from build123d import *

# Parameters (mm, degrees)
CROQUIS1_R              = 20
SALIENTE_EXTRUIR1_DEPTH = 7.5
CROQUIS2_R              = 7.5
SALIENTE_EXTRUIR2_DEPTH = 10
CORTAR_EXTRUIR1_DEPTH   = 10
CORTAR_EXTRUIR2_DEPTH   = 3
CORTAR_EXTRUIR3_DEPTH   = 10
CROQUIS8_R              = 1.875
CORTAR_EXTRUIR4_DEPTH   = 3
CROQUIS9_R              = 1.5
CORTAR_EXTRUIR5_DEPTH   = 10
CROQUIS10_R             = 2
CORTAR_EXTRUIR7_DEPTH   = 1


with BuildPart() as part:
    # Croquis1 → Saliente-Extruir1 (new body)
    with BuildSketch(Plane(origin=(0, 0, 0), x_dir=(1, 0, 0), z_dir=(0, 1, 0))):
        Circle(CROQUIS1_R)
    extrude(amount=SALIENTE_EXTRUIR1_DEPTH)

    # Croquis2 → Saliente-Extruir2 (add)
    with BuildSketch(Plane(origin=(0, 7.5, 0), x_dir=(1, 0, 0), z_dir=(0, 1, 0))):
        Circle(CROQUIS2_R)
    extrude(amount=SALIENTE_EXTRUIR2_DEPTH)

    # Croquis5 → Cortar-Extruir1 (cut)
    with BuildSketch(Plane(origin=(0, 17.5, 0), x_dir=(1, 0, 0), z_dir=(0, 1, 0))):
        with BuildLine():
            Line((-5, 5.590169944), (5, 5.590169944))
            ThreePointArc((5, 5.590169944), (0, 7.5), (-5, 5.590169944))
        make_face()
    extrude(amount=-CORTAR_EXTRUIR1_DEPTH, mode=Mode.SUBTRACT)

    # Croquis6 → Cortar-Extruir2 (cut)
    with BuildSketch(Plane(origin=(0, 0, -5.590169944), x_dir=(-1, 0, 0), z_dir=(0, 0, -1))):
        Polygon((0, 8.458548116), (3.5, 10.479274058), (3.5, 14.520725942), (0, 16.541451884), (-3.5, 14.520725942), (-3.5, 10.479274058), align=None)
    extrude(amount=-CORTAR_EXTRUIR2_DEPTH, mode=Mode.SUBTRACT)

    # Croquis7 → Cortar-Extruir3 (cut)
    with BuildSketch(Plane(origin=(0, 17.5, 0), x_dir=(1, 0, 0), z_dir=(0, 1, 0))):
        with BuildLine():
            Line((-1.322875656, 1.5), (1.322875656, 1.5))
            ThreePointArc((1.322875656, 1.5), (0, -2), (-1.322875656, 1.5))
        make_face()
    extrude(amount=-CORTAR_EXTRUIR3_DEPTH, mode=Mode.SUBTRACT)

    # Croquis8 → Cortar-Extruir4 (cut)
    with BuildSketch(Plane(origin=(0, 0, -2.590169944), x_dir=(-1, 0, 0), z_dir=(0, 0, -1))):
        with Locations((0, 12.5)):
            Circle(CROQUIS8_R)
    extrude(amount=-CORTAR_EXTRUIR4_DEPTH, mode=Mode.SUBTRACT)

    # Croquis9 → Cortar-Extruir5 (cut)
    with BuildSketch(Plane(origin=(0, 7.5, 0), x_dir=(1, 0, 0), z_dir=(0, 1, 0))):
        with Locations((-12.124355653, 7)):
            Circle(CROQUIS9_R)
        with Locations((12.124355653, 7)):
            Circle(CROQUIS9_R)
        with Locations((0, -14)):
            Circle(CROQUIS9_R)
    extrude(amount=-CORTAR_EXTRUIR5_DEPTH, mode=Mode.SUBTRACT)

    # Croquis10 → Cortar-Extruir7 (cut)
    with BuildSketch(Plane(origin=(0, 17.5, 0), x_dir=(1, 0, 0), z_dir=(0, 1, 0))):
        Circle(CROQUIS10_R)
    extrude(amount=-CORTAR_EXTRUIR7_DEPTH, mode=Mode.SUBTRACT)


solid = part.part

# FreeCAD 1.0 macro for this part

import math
import FreeCAD as App
import Part
import Sketcher

V = App.Vector
Q = App.Units.Quantity


def add_polygon(sketch, points):
    """Adds a closed chain of lines whose ends are joined by coincident constraints."""
    first, n = sketch.GeometryCount, len(points)
    for a, b in zip(points, points[1:] + points[:1]):
        sketch.addGeometry(Part.LineSegment(App.Vector(*a, 0), App.Vector(*b, 0)), False)
    for i in range(n):
        sketch.addConstraint(Sketcher.Constraint("Coincident", first + i, 2, first + (i + 1) % n, 1))

doc = App.newDocument("Part")
params = doc.addObject("Spreadsheet::Sheet", "Params")
for row, (alias, value) in enumerate([
    ("sketch1_diameter", "40 mm"),
    ("pad1_length", "7.5 mm"),
    ("sketch2_diameter", "15 mm"),
    ("pad2_length", "10 mm"),
    ("sketch3_radius", "7.5 mm"),
    ("sketch3_width", "10 mm"),
    ("pocket1_length", "10 mm"),
    ("pocket2_length", "3 mm"),
    ("sketch5_radius", "2 mm"),
    ("pocket3_length", "10 mm"),
    ("sketch6_diameter", "3.75 mm"),
    ("pocket4_length", "3 mm"),
    ("sketch7_diameter", "3 mm"),
    ("pocket5_length", "10 mm"),
    ("sketch8_diameter", "4 mm"),
    ("pocket6_length", "1 mm"),
], start=1):
    params.set(f"A{row}", alias)
    params.set(f"B{row}", "=" + value)
    params.setAlias(f"B{row}", alias)

body = doc.addObject("PartDesign::Body", "Body")

# Sketch on XZ plane
sketch1 = body.newObject("Sketcher::SketchObject", "Sketch")
sketch1.AttachmentSupport = (doc.getObject("XZ_Plane"), [""])
sketch1.MapMode = "FlatFace"
sketch1.addGeometry(Part.Circle(V(0, 0, 0), V(0, 0, 1), 20), False)
sketch1.addConstraint([
    Sketcher.Constraint("Coincident", 0, 3, -1, 1),
    Sketcher.Constraint("Diameter", 0, Q("40 mm")),
])
sketch1.setExpression("Constraints[1]", "Params.sketch1_diameter")
pad1 = body.newObject("PartDesign::Pad", "Pad")
pad1.Profile = sketch1
pad1.setExpression("Length", "Params.pad1_length")
pad1.Reversed = True

# Sketch on XZ plane
sketch2 = body.newObject("Sketcher::SketchObject", "Sketch001")
sketch2.AttachmentSupport = (doc.getObject("XZ_Plane"), [""])
sketch2.MapMode = "FlatFace"
sketch2.AttachmentOffset = App.Placement(V(0, 0, -7.5), App.Rotation())
sketch2.addGeometry(Part.Circle(V(0, 0, 0), V(0, 0, 1), 8), False)
sketch2.addConstraint([
    Sketcher.Constraint("Coincident", 0, 3, -1, 1),
    Sketcher.Constraint("Diameter", 0, Q("15 mm")),
])
sketch2.setExpression("Constraints[1]", "Params.sketch2_diameter")
pad2 = body.newObject("PartDesign::Pad", "Pad001")
pad2.Profile = sketch2
pad2.setExpression("Length", "Params.pad2_length")
pad2.Reversed = True

# Sketch on XZ plane
sketch3 = body.newObject("Sketcher::SketchObject", "Sketch002")
sketch3.AttachmentSupport = (doc.getObject("XZ_Plane"), [""])
sketch3.MapMode = "FlatFace"
sketch3.AttachmentOffset = App.Placement(V(0, 0, -17.5), App.Rotation())
sketch3.addGeometry([
    Part.LineSegment(V(-5, -6, 0), V(5, -6, 0)),
    Part.ArcOfCircle(Part.Circle(V(0, 0, 0), V(0, 0, 1), 8), math.radians(-132), math.radians(-48)),
], False)
sketch3.addConstraint([
    Sketcher.Constraint("Coincident", 0, 1, 1, 1),
    Sketcher.Constraint("Coincident", 1, 2, 0, 2),
    Sketcher.Constraint("Horizontal", 0),
    Sketcher.Constraint("Coincident", 1, 3, -1, 1),
    Sketcher.Constraint("Radius", 1, Q("7.5 mm")),
    Sketcher.Constraint("DistanceX", 0, 1, 0, 2, Q("10 mm")),
])
sketch3.setExpression("Constraints[4]", "Params.sketch3_radius")
sketch3.setExpression("Constraints[5]", "Params.sketch3_width")
pocket1 = body.newObject("PartDesign::Pocket", "Pocket")
pocket1.Profile = sketch3
pocket1.setExpression("Length", "Params.pocket1_length")
pocket1.Reversed = True

# Sketch on XY plane
sketch4 = body.newObject("Sketcher::SketchObject", "Sketch003")
sketch4.AttachmentSupport = (doc.getObject("XY_Plane"), [""])
sketch4.MapMode = "FlatFace"
sketch4.AttachmentOffset = App.Placement(V(0, 0, -5.59017), App.Rotation())
add_polygon(sketch4, [(0, 8.5), (-3.5, 10.5), (-3.5, 14.5), (0, 16.5), (3.5, 14.5), (3.5, 10.5)])  # lines 0-5
sketch4.addConstraint([
    Sketcher.Constraint("Vertical", 1),
    Sketcher.Constraint("Vertical", 4),
    Sketcher.Constraint("Symmetric", 1, 2, 3, 2, -2),
    Sketcher.Constraint("PointOnObject", 2, 2, -2),
    Sketcher.Constraint("PointOnObject", 5, 2, -2),
    Sketcher.Constraint("Parallel", 0, 3),
    Sketcher.Constraint("Parallel", 2, 5),
    Sketcher.Constraint("Angle", 0, Q("150 deg")),
    Sketcher.Constraint("DistanceX", 1, 2, 3, 2, Q("7 mm")),
    Sketcher.Constraint("DistanceY", 1, 1, 1, 2, Q("4.041452 mm")),
    Sketcher.Constraint("DistanceY", -1, 1, 2, 2, Q("16.541452 mm")),
])
pocket2 = body.newObject("PartDesign::Pocket", "Pocket001")
pocket2.Profile = sketch4
pocket2.setExpression("Length", "Params.pocket2_length")
pocket2.Reversed = True

# Sketch on XZ plane
sketch5 = body.newObject("Sketcher::SketchObject", "Sketch004")
sketch5.AttachmentSupport = (doc.getObject("XZ_Plane"), [""])
sketch5.MapMode = "FlatFace"
sketch5.AttachmentOffset = App.Placement(V(0, 0, -17.5), App.Rotation())
sketch5.addGeometry([
    Part.LineSegment(V(1.3, -1.5, 0), V(-1.3, -1.5, 0)),
    Part.ArcOfCircle(Part.Circle(V(0, 0, 0), V(0, 0, 1), 2), math.radians(-49), math.radians(229)),
], False)
sketch5.addConstraint([
    Sketcher.Constraint("Coincident", 0, 1, 1, 1),
    Sketcher.Constraint("Coincident", 1, 2, 0, 2),
    Sketcher.Constraint("Horizontal", 0),
    Sketcher.Constraint("Coincident", 1, 3, -1, 1),
    Sketcher.Constraint("Radius", 1, Q("2 mm")),
    Sketcher.Constraint("DistanceY", 0, 1, -1, 1, Q("1.5 mm")),
])
sketch5.setExpression("Constraints[4]", "Params.sketch5_radius")
pocket3 = body.newObject("PartDesign::Pocket", "Pocket002")
pocket3.Profile = sketch5
pocket3.setExpression("Length", "Params.pocket3_length")
pocket3.Reversed = True

# Sketch on XY plane
sketch6 = body.newObject("Sketcher::SketchObject", "Sketch005")
sketch6.AttachmentSupport = (doc.getObject("XY_Plane"), [""])
sketch6.MapMode = "FlatFace"
sketch6.AttachmentOffset = App.Placement(V(0, 0, -2.59017), App.Rotation())
sketch6.addGeometry(Part.Circle(V(0, 12.5, 0), V(0, 0, 1), 1.9), False)
sketch6.addConstraint([
    Sketcher.Constraint("PointOnObject", 0, 3, -2),
    Sketcher.Constraint("Diameter", 0, Q("3.75 mm")),
    Sketcher.Constraint("DistanceY", -1, 1, 0, 3, Q("12.5 mm")),
])
sketch6.setExpression("Constraints[1]", "Params.sketch6_diameter")
pocket4 = body.newObject("PartDesign::Pocket", "Pocket003")
pocket4.Profile = sketch6
pocket4.setExpression("Length", "Params.pocket4_length")
pocket4.Reversed = True

# Sketch on XZ plane
sketch7 = body.newObject("Sketcher::SketchObject", "Sketch006")
sketch7.AttachmentSupport = (doc.getObject("XZ_Plane"), [""])
sketch7.MapMode = "FlatFace"
sketch7.AttachmentOffset = App.Placement(V(0, 0, -7.5), App.Rotation())
sketch7.addGeometry([
    Part.Circle(V(-12.1, -7, 0), V(0, 0, 1), 1.5),
    Part.Circle(V(12.1, -7, 0), V(0, 0, 1), 1.5),
    Part.Circle(V(0, 14, 0), V(0, 0, 1), 1.5),
], False)
sketch7.addConstraint([
    Sketcher.Constraint("Equal", 0, 1),
    Sketcher.Constraint("Equal", 1, 2),
    Sketcher.Constraint("Symmetric", 0, 3, 1, 3, -2),
    Sketcher.Constraint("PointOnObject", 2, 3, -2),
    Sketcher.Constraint("Diameter", 0, Q("3 mm")),
    Sketcher.Constraint("DistanceY", 0, 3, -1, 1, Q("7 mm")),
    Sketcher.Constraint("DistanceY", -1, 1, 2, 3, Q("14 mm")),
    Sketcher.Constraint("DistanceX", 0, 3, 1, 3, Q("24.248711 mm")),
])
sketch7.setExpression("Constraints[4]", "Params.sketch7_diameter")
pocket5 = body.newObject("PartDesign::Pocket", "Pocket004")
pocket5.Profile = sketch7
pocket5.setExpression("Length", "Params.pocket5_length")
pocket5.Reversed = True

# Sketch on XZ plane
sketch8 = body.newObject("Sketcher::SketchObject", "Sketch007")
sketch8.AttachmentSupport = (doc.getObject("XZ_Plane"), [""])
sketch8.MapMode = "FlatFace"
sketch8.AttachmentOffset = App.Placement(V(0, 0, -17.5), App.Rotation())
sketch8.addGeometry(Part.Circle(V(0, 0, 0), V(0, 0, 1), 2), False)
sketch8.addConstraint([
    Sketcher.Constraint("Coincident", 0, 3, -1, 1),
    Sketcher.Constraint("Diameter", 0, Q("4 mm")),
])
sketch8.setExpression("Constraints[1]", "Params.sketch8_diameter")
pocket6 = body.newObject("PartDesign::Pocket", "Pocket005")
pocket6.Profile = sketch8
pocket6.setExpression("Length", "Params.pocket6_length")
pocket6.Reversed = True

doc.recompute()
